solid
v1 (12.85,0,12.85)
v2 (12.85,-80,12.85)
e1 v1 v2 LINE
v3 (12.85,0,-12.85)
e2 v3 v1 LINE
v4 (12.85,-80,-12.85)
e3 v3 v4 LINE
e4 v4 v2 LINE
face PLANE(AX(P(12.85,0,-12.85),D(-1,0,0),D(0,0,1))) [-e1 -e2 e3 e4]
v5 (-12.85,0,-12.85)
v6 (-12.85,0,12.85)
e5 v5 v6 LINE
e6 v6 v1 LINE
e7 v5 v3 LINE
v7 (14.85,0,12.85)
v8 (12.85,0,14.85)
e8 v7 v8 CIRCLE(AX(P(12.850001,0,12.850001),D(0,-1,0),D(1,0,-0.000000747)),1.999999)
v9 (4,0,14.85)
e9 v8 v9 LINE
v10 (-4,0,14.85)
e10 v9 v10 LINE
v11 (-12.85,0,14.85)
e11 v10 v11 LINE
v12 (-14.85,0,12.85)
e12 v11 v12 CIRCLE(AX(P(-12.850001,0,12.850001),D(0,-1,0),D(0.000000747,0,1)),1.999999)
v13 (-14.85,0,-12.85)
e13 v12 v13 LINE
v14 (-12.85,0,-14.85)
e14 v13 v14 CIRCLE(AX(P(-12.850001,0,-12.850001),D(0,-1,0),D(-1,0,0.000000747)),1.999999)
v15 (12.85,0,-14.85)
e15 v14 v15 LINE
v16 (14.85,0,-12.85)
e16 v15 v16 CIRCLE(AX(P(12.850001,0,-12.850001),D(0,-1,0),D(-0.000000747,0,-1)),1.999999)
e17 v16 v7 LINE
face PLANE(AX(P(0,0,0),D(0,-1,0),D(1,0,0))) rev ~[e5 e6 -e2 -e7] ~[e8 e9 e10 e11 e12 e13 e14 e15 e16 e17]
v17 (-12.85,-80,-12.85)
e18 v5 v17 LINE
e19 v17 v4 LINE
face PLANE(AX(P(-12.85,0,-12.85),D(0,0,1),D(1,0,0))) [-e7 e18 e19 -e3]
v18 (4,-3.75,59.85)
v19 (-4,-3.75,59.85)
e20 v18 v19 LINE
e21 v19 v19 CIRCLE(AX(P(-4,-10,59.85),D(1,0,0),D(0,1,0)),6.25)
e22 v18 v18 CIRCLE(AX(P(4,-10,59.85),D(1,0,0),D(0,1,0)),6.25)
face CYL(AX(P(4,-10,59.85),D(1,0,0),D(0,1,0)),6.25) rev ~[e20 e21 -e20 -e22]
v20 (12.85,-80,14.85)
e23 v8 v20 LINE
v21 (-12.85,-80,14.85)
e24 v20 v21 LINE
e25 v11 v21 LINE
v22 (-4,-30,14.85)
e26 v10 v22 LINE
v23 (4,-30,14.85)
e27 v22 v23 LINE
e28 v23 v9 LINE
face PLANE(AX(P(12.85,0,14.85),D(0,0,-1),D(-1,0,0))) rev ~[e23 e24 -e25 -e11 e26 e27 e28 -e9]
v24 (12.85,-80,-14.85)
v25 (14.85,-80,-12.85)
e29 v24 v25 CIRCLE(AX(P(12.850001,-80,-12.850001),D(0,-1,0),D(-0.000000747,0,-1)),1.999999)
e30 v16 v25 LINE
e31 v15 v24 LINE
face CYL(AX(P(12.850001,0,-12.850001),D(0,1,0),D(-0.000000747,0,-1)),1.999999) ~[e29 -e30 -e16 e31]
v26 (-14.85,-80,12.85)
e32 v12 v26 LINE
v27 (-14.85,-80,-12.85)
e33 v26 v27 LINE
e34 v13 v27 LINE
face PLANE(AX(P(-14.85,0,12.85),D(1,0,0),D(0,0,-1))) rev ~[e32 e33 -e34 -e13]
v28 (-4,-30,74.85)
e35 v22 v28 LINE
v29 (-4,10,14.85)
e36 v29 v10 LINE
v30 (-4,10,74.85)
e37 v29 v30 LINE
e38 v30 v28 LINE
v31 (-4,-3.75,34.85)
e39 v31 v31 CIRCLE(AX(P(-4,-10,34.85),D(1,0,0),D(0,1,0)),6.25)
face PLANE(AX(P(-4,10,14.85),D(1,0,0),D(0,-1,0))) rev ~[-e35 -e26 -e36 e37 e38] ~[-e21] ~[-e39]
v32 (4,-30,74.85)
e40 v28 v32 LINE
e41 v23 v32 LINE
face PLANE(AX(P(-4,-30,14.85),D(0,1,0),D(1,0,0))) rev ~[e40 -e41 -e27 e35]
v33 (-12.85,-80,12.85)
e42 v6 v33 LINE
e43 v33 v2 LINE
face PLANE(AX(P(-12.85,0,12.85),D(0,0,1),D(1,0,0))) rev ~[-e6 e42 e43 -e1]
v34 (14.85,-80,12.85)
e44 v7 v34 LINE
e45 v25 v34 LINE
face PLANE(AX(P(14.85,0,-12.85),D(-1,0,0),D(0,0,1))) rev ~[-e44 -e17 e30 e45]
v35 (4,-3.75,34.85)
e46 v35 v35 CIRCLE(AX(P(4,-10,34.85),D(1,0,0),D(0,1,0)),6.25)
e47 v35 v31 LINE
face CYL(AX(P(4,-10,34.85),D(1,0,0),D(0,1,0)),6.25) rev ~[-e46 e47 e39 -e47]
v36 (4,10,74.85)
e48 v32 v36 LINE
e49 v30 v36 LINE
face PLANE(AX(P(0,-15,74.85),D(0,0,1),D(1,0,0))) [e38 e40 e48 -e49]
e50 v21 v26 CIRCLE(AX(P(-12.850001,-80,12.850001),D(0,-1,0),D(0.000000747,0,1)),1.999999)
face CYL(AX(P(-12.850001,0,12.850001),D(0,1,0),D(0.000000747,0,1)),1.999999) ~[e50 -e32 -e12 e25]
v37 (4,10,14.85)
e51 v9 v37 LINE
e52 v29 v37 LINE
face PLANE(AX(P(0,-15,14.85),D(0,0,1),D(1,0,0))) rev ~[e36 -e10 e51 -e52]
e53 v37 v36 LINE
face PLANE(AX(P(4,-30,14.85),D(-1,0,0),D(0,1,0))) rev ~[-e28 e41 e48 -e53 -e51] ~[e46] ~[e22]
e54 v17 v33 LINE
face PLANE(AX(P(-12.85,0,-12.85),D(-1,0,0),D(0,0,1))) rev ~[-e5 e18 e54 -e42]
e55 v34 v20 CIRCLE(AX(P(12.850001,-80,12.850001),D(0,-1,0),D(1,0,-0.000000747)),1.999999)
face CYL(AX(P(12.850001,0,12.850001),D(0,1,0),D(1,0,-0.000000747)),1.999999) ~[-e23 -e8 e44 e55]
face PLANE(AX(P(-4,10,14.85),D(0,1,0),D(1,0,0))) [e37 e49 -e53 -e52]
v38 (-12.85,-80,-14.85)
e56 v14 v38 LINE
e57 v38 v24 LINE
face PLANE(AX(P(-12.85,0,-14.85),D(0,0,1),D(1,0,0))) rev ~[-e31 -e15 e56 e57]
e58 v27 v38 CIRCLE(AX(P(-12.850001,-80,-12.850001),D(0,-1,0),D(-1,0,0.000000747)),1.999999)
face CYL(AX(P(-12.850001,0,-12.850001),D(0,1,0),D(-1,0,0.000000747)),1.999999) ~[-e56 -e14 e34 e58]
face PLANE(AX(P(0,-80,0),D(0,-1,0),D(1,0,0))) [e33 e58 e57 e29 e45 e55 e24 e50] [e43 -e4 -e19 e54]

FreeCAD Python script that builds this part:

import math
import FreeCAD as App
import Part
import Sketcher
from FreeCAD import Vector

doc = App.newDocument("Part")
body = doc.addObject("PartDesign::Body", "Body")

# Sketch on XZ plane
sketch1 = doc.addObject("Sketcher::SketchObject", "Sketch")
body.addObject(sketch1)
sketch1.AttachmentSupport = (doc.XZ_Plane, [""])
sketch1.MapMode = "FlatFace"
sketch1.addGeometry([
    Part.LineSegment(Vector(-12.8, -14.8, 0), Vector(12.8, -14.8, 0)),  # 0
    Part.ArcOfCircle(Part.Circle(Vector(12.9, -12.9, 0), Vector(0, 0, 1), 2), math.radians(-90), math.radians(0)),  # 1
    Part.LineSegment(Vector(14.8, -12.8, 0), Vector(14.8, 12.8, 0)),  # 2
    Part.ArcOfCircle(Part.Circle(Vector(12.9, 12.9, 0), Vector(0, 0, 1), 2), math.radians(0), math.radians(90)),  # 3
    Part.LineSegment(Vector(12.8, 14.8, 0), Vector(-12.8, 14.8, 0)),  # 4
    Part.ArcOfCircle(Part.Circle(Vector(-12.9, 12.9, 0), Vector(0, 0, 1), 2), math.radians(90), math.radians(180)),  # 5
    Part.LineSegment(Vector(-14.8, 12.8, 0), Vector(-14.8, -12.8, 0)),  # 6
    Part.ArcOfCircle(Part.Circle(Vector(-12.9, -12.9, 0), Vector(0, 0, 1), 2), math.radians(180), math.radians(270)),  # 7
    Part.LineSegment(Vector(12.8, -12.8, 0), Vector(-12.8, -12.8, 0)),  # 8
    Part.LineSegment(Vector(-12.8, -12.8, 0), Vector(-12.8, 12.8, 0)),  # 9
    Part.LineSegment(Vector(-12.8, 12.8, 0), Vector(12.8, 12.8, 0)),  # 10
    Part.LineSegment(Vector(12.8, 12.8, 0), Vector(12.8, -12.8, 0)),  # 11
], False)
sketch1.addConstraint([
    Sketcher.Constraint("Tangent", 0, 2, 1, 1),
    Sketcher.Constraint("Tangent", 1, 2, 2, 1),
    Sketcher.Constraint("Tangent", 2, 2, 3, 1),
    Sketcher.Constraint("Tangent", 3, 2, 4, 1),
    Sketcher.Constraint("Tangent", 4, 2, 5, 1),
    Sketcher.Constraint("Tangent", 5, 2, 6, 1),
    Sketcher.Constraint("Tangent", 6, 2, 7, 1),
    Sketcher.Constraint("Tangent", 7, 2, 0, 1),
    Sketcher.Constraint("Coincident", 8, 2, 9, 1),
    Sketcher.Constraint("Coincident", 9, 2, 10, 1),
    Sketcher.Constraint("Coincident", 10, 2, 11, 1),
    Sketcher.Constraint("Coincident", 11, 2, 8, 1),
    Sketcher.Constraint("Horizontal", 0),
    Sketcher.Constraint("Vertical", 2),
    Sketcher.Constraint("Horizontal", 4),
    Sketcher.Constraint("Vertical", 6),
    Sketcher.Constraint("Horizontal", 8),
    Sketcher.Constraint("Vertical", 9),
    Sketcher.Constraint("Horizontal", 10),
    Sketcher.Constraint("Vertical", 11),
    Sketcher.Constraint("Coincident", 8, 2, 7, 3),
    Sketcher.Constraint("Coincident", 9, 2, 5, 3),
    Sketcher.Constraint("Coincident", 10, 2, 3, 3),
    Sketcher.Constraint("Equal", 1, 3),
    Sketcher.Constraint("Symmetric", 1, 3, 5, 3, -1, 1),
    Sketcher.Constraint("Equal", 10, 2),
    Sketcher.Constraint("Radius", 1, 1.999999),
    Sketcher.Constraint("DistanceX", 0, 1, 0, 2, 25.7),
])
pad1 = doc.addObject("PartDesign::Pad", "Pad")
body.addObject(pad1)
pad1.Profile = sketch1
pad1.Length = 80

# Sketch on XY plane
sketch2 = doc.addObject("Sketcher::SketchObject", "Sketch001")
body.addObject(sketch2)
sketch2.AttachmentSupport = (doc.XY_Plane, [""])
sketch2.MapMode = "FlatFace"
sketch2.AttachmentOffset = App.Placement(Vector(0, 0, 14.85), App.Rotation())
sketch2.addGeometry([
    Part.LineSegment(Vector(-4, -30, 0), Vector(4, -30, 0)),
    Part.LineSegment(Vector(4, -30, 0), Vector(4, 10, 0)),
    Part.LineSegment(Vector(4, 10, 0), Vector(-4, 10, 0)),
    Part.LineSegment(Vector(-4, 10, 0), Vector(-4, -30, 0)),
], False)
sketch2.addConstraint([
    Sketcher.Constraint("Coincident", 0, 2, 1, 1),
    Sketcher.Constraint("Coincident", 1, 2, 2, 1),
    Sketcher.Constraint("Coincident", 2, 2, 3, 1),
    Sketcher.Constraint("Coincident", 3, 2, 0, 1),
    Sketcher.Constraint("Horizontal", 0),
    Sketcher.Constraint("Vertical", 1),
    Sketcher.Constraint("Horizontal", 2),
    Sketcher.Constraint("Vertical", 3),
    Sketcher.Constraint("DistanceX", 0, 1, 0, 2, 8.0),
    Sketcher.Constraint("DistanceY", 1, 1, 1, 2, 40.0),
    Sketcher.Constraint("DistanceX", -1, 1, 0, 2, 4.0),
    Sketcher.Constraint("DistanceY", 0, 2, -1, 1, 30.0),
])
pad2 = doc.addObject("PartDesign::Pad", "Pad001")
body.addObject(pad2)
pad2.Profile = sketch2
pad2.Length = 60

# Sketch on YZ plane
sketch3 = doc.addObject("Sketcher::SketchObject", "Sketch002")
body.addObject(sketch3)
sketch3.AttachmentSupport = (doc.YZ_Plane, [""])
sketch3.MapMode = "FlatFace"
sketch3.AttachmentOffset = App.Placement(Vector(0, 0, 4), App.Rotation())
sketch3.addGeometry([
    Part.Circle(Vector(-10, 35, 0), Vector(0, 0, 1), 6),
    Part.Circle(Vector(-10, 60, 0), Vector(0, 0, 1), 6),
], False)
sketch3.addConstraint([
    Sketcher.Constraint("Equal", 0, 1),
    Sketcher.Constraint("Vertical", 0, 3, 1, 3),
    Sketcher.Constraint("Diameter", 0, 12.5),
    Sketcher.Constraint("DistanceX", 0, 3, -1, 1, 10.0),
    Sketcher.Constraint("DistanceY", 0, 3, 1, 3, 25.0),
    Sketcher.Constraint("DistanceY", -1, 1, 0, 3, 34.85),
])
pocket1 = doc.addObject("PartDesign::Pocket", "Pocket")
body.addObject(pocket1)
pocket1.Profile = sketch3
pocket1.Length = 25

doc.recompute()
